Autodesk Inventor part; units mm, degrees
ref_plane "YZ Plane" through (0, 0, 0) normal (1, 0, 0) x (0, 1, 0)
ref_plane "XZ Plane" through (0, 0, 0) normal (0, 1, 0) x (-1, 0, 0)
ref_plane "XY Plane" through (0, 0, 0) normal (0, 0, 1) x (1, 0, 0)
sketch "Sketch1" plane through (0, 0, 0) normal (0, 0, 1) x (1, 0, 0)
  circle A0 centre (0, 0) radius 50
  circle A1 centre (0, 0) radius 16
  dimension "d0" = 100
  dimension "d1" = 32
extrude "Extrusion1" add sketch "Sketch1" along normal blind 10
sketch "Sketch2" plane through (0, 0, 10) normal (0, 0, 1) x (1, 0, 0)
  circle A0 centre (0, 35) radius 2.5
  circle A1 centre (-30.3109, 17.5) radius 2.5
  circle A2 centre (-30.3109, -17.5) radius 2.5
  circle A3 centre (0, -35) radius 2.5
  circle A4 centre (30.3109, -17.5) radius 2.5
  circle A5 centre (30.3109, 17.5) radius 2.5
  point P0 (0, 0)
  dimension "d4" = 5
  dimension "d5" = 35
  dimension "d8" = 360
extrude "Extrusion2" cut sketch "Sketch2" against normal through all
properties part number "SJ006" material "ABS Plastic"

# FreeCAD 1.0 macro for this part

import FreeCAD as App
import Part
import Sketcher
Q = App.Units.Quantity

doc = App.newDocument("Part")
body = doc.addObject("PartDesign::Body", "Body")

# Sketch on XY plane
sketch1 = body.newObject("Sketcher::SketchObject", "Sketch")
sketch1.AttachmentSupport = (doc.getObject("XY_Plane"), [""])
sketch1.MapMode = "FlatFace"
sketch1.addGeometry([
    Part.Circle(App.Vector(0, 0, 0), App.Vector(0, 0, 1), 50),
    Part.Circle(App.Vector(0, 0, 0), App.Vector(0, 0, 1), 16),
], False)
sketch1.addConstraint([
    Sketcher.Constraint("Coincident", 0, 3, -1, 1),
    Sketcher.Constraint("Coincident", 1, 3, -1, 1),
    Sketcher.Constraint("Diameter", 0, Q("100 mm")),
    Sketcher.Constraint("Diameter", 1, Q("32 mm")),
])
pad1 = body.newObject("PartDesign::Pad", "Pad")
pad1.Profile = sketch1
pad1.Length = 10

# Sketch on XY plane
sketch2 = body.newObject("Sketcher::SketchObject", "Sketch001")
sketch2.AttachmentSupport = (doc.getObject("XY_Plane"), [""])
sketch2.MapMode = "FlatFace"
sketch2.AttachmentOffset = App.Placement(App.Vector(0, 0, 10), App.Rotation())
sketch2.addGeometry([
    Part.Circle(App.Vector(0, 35, 0), App.Vector(0, 0, 1), 2.5),  # 0
    Part.Circle(App.Vector(-30.3, 17.5, 0), App.Vector(0, 0, 1), 2.5),  # 1
    Part.Circle(App.Vector(-30.3, -17.5, 0), App.Vector(0, 0, 1), 2.5),  # 2
    Part.Circle(App.Vector(0, -35, 0), App.Vector(0, 0, 1), 2.5),  # 3
    Part.Circle(App.Vector(30.3, -17.5, 0), App.Vector(0, 0, 1), 2.5),  # 4
    Part.Circle(App.Vector(30.3, 17.5, 0), App.Vector(0, 0, 1), 2.5),  # 5
], False)
sketch2.addConstraint([
    Sketcher.Constraint("Equal", 0, 1),
    Sketcher.Constraint("Equal", 1, 2),
    Sketcher.Constraint("Equal", 2, 3),
    Sketcher.Constraint("Equal", 3, 4),
    Sketcher.Constraint("Equal", 4, 5),
    Sketcher.Constraint("Symmetric", 0, 3, 3, 3, -1, 1),
    Sketcher.Constraint("Symmetric", 1, 3, 4, 3, -1, 1),
    Sketcher.Constraint("Symmetric", 2, 3, 5, 3, -1, 1),
    Sketcher.Constraint("Symmetric", 2, 3, 4, 3, -2),
    Sketcher.Constraint("PointOnObject", 0, 3, -2),
    Sketcher.Constraint("Diameter", 0, Q("5 mm")),
    Sketcher.Constraint("DistanceY", -1, 1, 0, 3, Q("35 mm")),
    Sketcher.Constraint("DistanceY", 2, 3, 1, 3, Q("35 mm")),
    Sketcher.Constraint("DistanceX", 1, 3, -1, 1, Q("30.311 mm")),
])
pocket1 = body.newObject("PartDesign::Pocket", "Pocket")
pocket1.Profile = sketch2
pocket1.Type = "ThroughAll"

doc.recompute()
